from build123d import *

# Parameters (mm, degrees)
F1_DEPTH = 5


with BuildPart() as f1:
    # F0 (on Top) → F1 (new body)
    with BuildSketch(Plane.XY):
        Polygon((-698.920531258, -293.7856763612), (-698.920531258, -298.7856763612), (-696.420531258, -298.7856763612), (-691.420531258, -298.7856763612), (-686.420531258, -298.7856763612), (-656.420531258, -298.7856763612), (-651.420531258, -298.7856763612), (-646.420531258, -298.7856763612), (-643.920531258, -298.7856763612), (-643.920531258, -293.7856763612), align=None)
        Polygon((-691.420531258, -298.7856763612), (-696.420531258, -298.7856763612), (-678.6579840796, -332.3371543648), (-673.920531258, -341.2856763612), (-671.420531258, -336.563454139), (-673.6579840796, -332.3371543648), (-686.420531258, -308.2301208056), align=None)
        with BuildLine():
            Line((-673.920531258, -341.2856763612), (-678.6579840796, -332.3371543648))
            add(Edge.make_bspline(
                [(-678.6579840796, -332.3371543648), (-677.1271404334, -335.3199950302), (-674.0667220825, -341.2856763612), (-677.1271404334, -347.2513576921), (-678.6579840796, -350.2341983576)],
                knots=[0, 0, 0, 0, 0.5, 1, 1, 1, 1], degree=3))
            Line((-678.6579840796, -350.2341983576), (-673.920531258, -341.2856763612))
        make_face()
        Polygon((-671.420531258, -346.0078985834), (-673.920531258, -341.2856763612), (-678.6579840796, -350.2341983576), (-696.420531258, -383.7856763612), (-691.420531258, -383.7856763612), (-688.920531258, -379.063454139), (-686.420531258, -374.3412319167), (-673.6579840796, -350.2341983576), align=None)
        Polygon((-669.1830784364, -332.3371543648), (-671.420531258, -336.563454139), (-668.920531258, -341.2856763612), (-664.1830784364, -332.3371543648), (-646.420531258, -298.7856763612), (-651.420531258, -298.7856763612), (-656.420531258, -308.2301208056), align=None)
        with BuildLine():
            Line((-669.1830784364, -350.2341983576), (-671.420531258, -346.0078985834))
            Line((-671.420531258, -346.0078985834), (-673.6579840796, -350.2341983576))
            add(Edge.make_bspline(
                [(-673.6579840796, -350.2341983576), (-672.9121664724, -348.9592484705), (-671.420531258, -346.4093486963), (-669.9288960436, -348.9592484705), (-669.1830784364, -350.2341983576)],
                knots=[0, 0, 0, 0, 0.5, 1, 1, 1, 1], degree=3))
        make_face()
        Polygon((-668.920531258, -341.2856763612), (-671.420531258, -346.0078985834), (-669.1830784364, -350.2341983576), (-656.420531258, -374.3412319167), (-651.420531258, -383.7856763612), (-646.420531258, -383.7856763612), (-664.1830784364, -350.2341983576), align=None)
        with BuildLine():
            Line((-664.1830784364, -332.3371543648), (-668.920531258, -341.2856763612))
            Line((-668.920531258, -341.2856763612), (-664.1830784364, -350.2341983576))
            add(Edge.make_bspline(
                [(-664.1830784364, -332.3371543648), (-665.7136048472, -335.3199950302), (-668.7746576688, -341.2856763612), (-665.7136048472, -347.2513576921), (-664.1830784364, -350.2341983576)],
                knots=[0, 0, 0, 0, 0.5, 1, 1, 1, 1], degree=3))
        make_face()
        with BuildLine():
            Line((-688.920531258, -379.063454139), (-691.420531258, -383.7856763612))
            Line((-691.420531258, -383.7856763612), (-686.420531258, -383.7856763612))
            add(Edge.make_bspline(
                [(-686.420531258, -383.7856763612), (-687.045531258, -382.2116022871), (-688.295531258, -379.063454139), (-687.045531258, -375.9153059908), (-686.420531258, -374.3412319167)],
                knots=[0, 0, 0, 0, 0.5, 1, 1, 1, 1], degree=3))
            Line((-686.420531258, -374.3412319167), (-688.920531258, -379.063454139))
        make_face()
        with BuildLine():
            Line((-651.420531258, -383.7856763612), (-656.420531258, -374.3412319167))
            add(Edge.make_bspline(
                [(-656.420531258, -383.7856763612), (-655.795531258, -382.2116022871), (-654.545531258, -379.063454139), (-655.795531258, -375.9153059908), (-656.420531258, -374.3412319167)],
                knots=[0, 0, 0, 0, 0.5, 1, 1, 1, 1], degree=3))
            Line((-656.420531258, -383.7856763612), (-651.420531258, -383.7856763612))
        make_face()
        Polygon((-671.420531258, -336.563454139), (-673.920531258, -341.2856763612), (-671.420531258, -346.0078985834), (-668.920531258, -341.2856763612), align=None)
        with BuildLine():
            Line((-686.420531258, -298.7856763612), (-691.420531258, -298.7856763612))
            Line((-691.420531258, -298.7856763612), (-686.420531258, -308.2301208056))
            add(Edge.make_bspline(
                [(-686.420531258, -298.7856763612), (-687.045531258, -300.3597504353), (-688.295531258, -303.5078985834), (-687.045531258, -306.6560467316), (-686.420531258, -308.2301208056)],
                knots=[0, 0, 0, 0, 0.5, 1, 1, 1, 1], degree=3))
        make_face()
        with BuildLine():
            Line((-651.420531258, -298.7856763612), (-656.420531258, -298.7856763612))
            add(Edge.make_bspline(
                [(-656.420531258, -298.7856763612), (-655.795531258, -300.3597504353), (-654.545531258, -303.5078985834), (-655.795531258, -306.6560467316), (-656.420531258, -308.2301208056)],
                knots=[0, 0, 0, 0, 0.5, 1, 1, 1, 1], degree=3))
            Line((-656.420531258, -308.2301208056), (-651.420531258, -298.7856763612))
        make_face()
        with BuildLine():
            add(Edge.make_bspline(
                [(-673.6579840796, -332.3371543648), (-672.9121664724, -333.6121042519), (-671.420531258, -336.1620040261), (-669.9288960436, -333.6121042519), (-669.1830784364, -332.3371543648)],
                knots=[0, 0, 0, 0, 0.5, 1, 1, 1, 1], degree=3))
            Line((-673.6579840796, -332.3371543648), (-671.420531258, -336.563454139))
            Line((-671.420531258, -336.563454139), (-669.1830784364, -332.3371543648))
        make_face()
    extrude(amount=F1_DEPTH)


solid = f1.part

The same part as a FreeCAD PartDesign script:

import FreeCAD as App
import Part
import Sketcher
Q = App.Units.Quantity

doc = App.newDocument("Part")
body = doc.addObject("PartDesign::Body", "Body")

# Sketch on XY plane
sketch1 = body.newObject("Sketcher::SketchObject", "Sketch")
sketch1.AttachmentSupport = (doc.getObject("XY_Plane"), [""])
sketch1.MapMode = "FlatFace"
sketch1.addGeometry([
    Part.LineSegment(App.Vector(-646.420531, -383.785676, 0), App.Vector(-664.183078, -350.234198, 0)),  # 0
    Part.BSplineCurve([App.Vector(-664.183078, -332.337154, 0), App.Vector(-665.713605, -335.319995, 0), App.Vector(-668.774658, -341.285676, 0), App.Vector(-665.713605, -347.251358, 0), App.Vector(-664.183078, -350.234198, 0)], [4, 1, 4], [0, 0.5, 1], False, 3, [1, 1, 1, 1, 1], False),  # 1
    Part.LineSegment(App.Vector(-664.183078, -332.337154, 0), App.Vector(-646.420531, -298.785676, 0)),  # 2
    Part.LineSegment(App.Vector(-646.420531, -298.785676, 0), App.Vector(-643.920531, -298.785676, 0)),  # 3
    Part.LineSegment(App.Vector(-643.920531, -298.785676, 0), App.Vector(-643.920531, -293.785676, 0)),  # 4
    Part.LineSegment(App.Vector(-643.920531, -293.785676, 0), App.Vector(-698.920531, -293.785676, 0)),  # 5
    Part.LineSegment(App.Vector(-698.920531, -293.785676, 0), App.Vector(-698.920531, -298.785676, 0)),  # 6
    Part.LineSegment(App.Vector(-698.920531, -298.785676, 0), App.Vector(-696.420531, -298.785676, 0)),  # 7
    Part.LineSegment(App.Vector(-696.420531, -298.785676, 0), App.Vector(-678.657984, -332.337154, 0)),  # 8
    Part.BSplineCurve([App.Vector(-678.657984, -332.337154, 0), App.Vector(-677.12714, -335.319995, 0), App.Vector(-674.066722, -341.285676, 0), App.Vector(-677.12714, -347.251358, 0), App.Vector(-678.657984, -350.234198, 0)], [4, 1, 4], [0, 0.5, 1], False, 3, [1, 1, 1, 1, 1], False),  # 9
    Part.LineSegment(App.Vector(-678.657984, -350.234198, 0), App.Vector(-696.420531, -383.785676, 0)),  # 10
    Part.LineSegment(App.Vector(-696.420531, -383.785676, 0), App.Vector(-686.420531, -383.785676, 0)),  # 11
    Part.BSplineCurve([App.Vector(-686.420531, -383.785676, 0), App.Vector(-687.045531, -382.211602, 0), App.Vector(-688.295531, -379.063454, 0), App.Vector(-687.045531, -375.915306, 0), App.Vector(-686.420531, -374.341232, 0)], [4, 1, 4], [0, 0.5, 1], False, 3, [1, 1, 1, 1, 1], False),  # 12
    Part.LineSegment(App.Vector(-686.420531, -374.341232, 0), App.Vector(-673.657984, -350.234198, 0)),  # 13
    Part.BSplineCurve([App.Vector(-673.657984, -350.234198, 0), App.Vector(-672.912166, -348.959248, 0), App.Vector(-671.420531, -346.409349, 0), App.Vector(-669.928896, -348.959248, 0), App.Vector(-669.183078, -350.234198, 0)], [4, 1, 4], [0, 0.5, 1], False, 3, [1, 1, 1, 1, 1], False),  # 14
    Part.LineSegment(App.Vector(-669.183078, -350.234198, 0), App.Vector(-656.420531, -374.341232, 0)),  # 15
    Part.BSplineCurve([App.Vector(-656.420531, -383.785676, 0), App.Vector(-655.795531, -382.211602, 0), App.Vector(-654.545531, -379.063454, 0), App.Vector(-655.795531, -375.915306, 0), App.Vector(-656.420531, -374.341232, 0)], [4, 1, 4], [0, 0.5, 1], False, 3, [1, 1, 1, 1, 1], False),  # 16
    Part.LineSegment(App.Vector(-656.420531, -383.785676, 0), App.Vector(-646.420531, -383.785676, 0)),  # 17
    Part.LineSegment(App.Vector(-673.657984, -332.337154, 0), App.Vector(-686.420531, -308.230121, 0)),  # 18
    Part.BSplineCurve([App.Vector(-686.420531, -298.785676, 0), App.Vector(-687.045531, -300.35975, 0), App.Vector(-688.295531, -303.507899, 0), App.Vector(-687.045531, -306.656047, 0), App.Vector(-686.420531, -308.230121, 0)], [4, 1, 4], [0, 0.5, 1], False, 3, [1, 1, 1, 1, 1], False),  # 19
    Part.LineSegment(App.Vector(-686.420531, -298.785676, 0), App.Vector(-656.420531, -298.785676, 0)),  # 20
    Part.BSplineCurve([App.Vector(-656.420531, -298.785676, 0), App.Vector(-655.795531, -300.35975, 0), App.Vector(-654.545531, -303.507899, 0), App.Vector(-655.795531, -306.656047, 0), App.Vector(-656.420531, -308.230121, 0)], [4, 1, 4], [0, 0.5, 1], False, 3, [1, 1, 1, 1, 1], False),  # 21
    Part.LineSegment(App.Vector(-656.420531, -308.230121, 0), App.Vector(-669.183078, -332.337154, 0)),  # 22
    Part.BSplineCurve([App.Vector(-673.657984, -332.337154, 0), App.Vector(-672.912166, -333.612104, 0), App.Vector(-671.420531, -336.162004, 0), App.Vector(-669.928896, -333.612104, 0), App.Vector(-669.183078, -332.337154, 0)], [4, 1, 4], [0, 0.5, 1], False, 3, [1, 1, 1, 1, 1], False),  # 23
], False)
sketch1.addConstraint([
    Sketcher.Constraint("Block", 1),
    Sketcher.Constraint("Block", 9),
    Sketcher.Constraint("Block", 12),
    Sketcher.Constraint("Block", 14),
    Sketcher.Constraint("Block", 16),
    Sketcher.Constraint("Block", 19),
    Sketcher.Constraint("Block", 21),
    Sketcher.Constraint("Block", 23),
    Sketcher.Constraint("Coincident", 0, 2, 1, 2),
    Sketcher.Constraint("Coincident", 1, 1, 2, 1),
    Sketcher.Constraint("Coincident", 2, 2, 3, 1),
    Sketcher.Constraint("Coincident", 3, 2, 4, 1),
    Sketcher.Constraint("Coincident", 4, 2, 5, 1),
    Sketcher.Constraint("Coincident", 5, 2, 6, 1),
    Sketcher.Constraint("Coincident", 6, 2, 7, 1),
    Sketcher.Constraint("Coincident", 7, 2, 8, 1),
    Sketcher.Constraint("Coincident", 8, 2, 9, 1),
    Sketcher.Constraint("Coincident", 9, 2, 10, 1),
    Sketcher.Constraint("Coincident", 10, 2, 11, 1),
    Sketcher.Constraint("Coincident", 11, 2, 12, 1),
    Sketcher.Constraint("Coincident", 12, 2, 13, 1),
    Sketcher.Constraint("Coincident", 13, 2, 14, 1),
    Sketcher.Constraint("Coincident", 14, 2, 15, 1),
    Sketcher.Constraint("Coincident", 15, 2, 16, 2),
    Sketcher.Constraint("Coincident", 16, 1, 17, 1),
    Sketcher.Constraint("Coincident", 17, 2, 0, 1),
    Sketcher.Constraint("Coincident", 18, 2, 19, 2),
    Sketcher.Constraint("Coincident", 19, 1, 20, 1),
    Sketcher.Constraint("Coincident", 20, 2, 21, 1),
    Sketcher.Constraint("Coincident", 21, 2, 22, 1),
    Sketcher.Constraint("Coincident", 22, 2, 23, 2),
    Sketcher.Constraint("Coincident", 23, 1, 18, 1),
    Sketcher.Constraint("Horizontal", 3),
    Sketcher.Constraint("Vertical", 4),
    Sketcher.Constraint("Horizontal", 5),
    Sketcher.Constraint("Vertical", 6),
    Sketcher.Constraint("Horizontal", 7),
    Sketcher.Constraint("Horizontal", 11),
    Sketcher.Constraint("Horizontal", 17),
    Sketcher.Constraint("Parallel", 0, 8),
    Sketcher.Constraint("Parallel", 2, 10),
    Sketcher.Constraint("Parallel", 10, 13),
    Sketcher.Constraint("Parallel", 8, 15),
    Sketcher.Constraint("Horizontal", 3, 2, 6, 2),
    Sketcher.Constraint("Horizontal", 7, 2, 20, 2),
    Sketcher.Constraint("Equal", 3, 7),
    Sketcher.Constraint("DistanceX", 5, 2, 5, 1, Q("55 mm")),
    Sketcher.Constraint("DistanceY", 4, 1, 4, 2, Q("5 mm")),
])
pad1 = body.newObject("PartDesign::Pad", "Pad")
pad1.Profile = sketch1
pad1.Length = 5

doc.recompute()
